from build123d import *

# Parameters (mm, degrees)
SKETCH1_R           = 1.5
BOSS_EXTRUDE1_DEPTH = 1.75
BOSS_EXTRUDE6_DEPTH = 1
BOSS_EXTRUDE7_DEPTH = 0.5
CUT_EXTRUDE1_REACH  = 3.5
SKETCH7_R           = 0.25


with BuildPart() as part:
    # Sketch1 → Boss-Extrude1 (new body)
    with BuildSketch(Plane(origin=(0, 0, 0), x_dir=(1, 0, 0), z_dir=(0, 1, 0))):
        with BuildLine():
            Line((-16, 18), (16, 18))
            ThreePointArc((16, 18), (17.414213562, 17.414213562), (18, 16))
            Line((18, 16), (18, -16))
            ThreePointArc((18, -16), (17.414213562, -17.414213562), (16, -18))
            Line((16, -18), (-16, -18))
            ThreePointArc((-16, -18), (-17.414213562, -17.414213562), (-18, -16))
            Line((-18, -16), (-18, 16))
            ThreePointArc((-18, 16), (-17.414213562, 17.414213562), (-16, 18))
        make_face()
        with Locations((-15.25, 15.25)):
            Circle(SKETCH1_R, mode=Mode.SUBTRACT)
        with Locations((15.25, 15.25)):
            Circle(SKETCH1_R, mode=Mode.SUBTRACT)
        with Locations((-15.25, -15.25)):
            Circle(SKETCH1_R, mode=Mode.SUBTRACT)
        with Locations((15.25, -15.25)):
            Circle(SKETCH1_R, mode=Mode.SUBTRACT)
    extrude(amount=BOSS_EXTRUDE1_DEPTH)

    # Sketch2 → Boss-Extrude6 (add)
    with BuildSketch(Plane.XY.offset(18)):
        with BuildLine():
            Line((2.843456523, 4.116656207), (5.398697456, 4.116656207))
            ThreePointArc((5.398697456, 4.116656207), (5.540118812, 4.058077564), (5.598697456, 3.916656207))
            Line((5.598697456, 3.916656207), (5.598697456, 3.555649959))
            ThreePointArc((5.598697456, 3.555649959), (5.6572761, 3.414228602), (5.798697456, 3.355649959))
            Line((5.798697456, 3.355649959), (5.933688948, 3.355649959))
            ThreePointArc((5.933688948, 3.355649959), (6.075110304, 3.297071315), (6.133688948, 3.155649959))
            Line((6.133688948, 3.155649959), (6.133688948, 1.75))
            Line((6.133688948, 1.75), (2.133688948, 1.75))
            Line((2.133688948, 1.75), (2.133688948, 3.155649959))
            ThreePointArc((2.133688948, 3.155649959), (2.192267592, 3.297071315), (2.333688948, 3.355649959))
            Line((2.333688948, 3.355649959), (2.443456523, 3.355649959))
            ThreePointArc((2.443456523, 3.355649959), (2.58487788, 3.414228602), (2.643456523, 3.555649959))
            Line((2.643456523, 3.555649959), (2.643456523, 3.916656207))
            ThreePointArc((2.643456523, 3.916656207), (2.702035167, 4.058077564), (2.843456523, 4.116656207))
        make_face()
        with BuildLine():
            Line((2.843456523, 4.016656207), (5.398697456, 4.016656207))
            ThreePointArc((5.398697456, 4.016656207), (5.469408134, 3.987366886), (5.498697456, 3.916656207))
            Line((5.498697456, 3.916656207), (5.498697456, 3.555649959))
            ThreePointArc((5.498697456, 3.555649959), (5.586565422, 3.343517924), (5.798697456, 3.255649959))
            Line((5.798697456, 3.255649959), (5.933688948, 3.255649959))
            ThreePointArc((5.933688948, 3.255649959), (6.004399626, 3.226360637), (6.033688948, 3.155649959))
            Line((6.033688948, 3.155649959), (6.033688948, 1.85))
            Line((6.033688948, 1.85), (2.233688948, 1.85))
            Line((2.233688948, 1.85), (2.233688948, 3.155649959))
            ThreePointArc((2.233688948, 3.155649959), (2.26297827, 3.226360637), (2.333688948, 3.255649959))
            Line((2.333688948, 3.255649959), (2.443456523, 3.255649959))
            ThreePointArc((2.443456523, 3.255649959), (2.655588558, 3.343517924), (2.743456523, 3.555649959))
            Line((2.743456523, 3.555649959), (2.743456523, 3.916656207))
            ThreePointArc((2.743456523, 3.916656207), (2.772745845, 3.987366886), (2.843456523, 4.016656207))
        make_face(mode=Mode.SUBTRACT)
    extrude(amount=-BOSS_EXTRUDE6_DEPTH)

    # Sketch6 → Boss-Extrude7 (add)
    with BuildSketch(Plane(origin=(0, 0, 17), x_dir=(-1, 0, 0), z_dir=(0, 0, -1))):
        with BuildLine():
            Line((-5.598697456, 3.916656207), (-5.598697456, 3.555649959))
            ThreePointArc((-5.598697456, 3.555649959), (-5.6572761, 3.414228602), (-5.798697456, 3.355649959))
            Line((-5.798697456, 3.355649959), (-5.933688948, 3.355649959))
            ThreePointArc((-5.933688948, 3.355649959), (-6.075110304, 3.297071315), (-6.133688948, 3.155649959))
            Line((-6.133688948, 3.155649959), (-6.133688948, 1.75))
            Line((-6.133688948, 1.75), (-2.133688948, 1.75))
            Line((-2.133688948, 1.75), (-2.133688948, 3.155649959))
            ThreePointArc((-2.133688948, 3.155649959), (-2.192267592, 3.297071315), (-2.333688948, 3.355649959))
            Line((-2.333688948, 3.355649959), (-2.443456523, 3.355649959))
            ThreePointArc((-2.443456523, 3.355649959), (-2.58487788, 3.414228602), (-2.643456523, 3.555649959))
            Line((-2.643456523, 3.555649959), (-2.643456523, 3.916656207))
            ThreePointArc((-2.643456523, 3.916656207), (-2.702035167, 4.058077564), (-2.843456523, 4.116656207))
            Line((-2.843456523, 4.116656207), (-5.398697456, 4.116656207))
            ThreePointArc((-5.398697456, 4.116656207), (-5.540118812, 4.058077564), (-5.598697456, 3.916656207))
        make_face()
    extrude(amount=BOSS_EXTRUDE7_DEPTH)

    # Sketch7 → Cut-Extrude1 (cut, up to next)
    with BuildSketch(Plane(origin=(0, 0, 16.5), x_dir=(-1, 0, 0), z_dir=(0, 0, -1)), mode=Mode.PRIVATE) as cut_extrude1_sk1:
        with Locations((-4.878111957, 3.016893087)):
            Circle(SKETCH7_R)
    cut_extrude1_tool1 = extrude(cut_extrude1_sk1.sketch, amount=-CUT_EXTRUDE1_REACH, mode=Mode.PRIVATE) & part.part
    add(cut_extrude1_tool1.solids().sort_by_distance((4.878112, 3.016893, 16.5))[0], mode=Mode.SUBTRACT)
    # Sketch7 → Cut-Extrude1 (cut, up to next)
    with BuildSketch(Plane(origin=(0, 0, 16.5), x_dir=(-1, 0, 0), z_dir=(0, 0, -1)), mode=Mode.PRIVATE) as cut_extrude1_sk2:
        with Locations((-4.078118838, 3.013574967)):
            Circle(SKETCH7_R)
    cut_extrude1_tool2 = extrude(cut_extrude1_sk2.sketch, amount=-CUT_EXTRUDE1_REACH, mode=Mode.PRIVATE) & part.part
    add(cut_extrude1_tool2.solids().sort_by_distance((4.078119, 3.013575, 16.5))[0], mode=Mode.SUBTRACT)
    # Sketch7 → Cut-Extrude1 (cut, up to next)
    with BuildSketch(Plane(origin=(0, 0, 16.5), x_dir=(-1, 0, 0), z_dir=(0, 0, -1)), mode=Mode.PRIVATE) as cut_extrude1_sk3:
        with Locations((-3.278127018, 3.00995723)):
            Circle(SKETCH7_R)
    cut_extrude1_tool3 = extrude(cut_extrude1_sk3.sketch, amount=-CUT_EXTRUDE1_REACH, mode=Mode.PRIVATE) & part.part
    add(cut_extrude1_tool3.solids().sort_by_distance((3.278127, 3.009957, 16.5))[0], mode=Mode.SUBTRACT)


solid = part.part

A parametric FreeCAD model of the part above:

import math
import FreeCAD as App
import Part
import Sketcher

V = App.Vector
Q = App.Units.Quantity

doc = App.newDocument("Part")
body = doc.addObject("PartDesign::Body", "Body")

# Sketch on XZ plane
sketch1 = body.newObject("Sketcher::SketchObject", "Sketch")
sketch1.AttachmentSupport = (doc.getObject("XZ_Plane"), [""])
sketch1.MapMode = "FlatFace"
sketch1.addGeometry([
    Part.LineSegment(V(16, -18, 0), V(-16, -18, 0)),  # 0
    Part.ArcOfCircle(Part.Circle(V(-16, -16, 0), V(0, 0, 1), 2), math.radians(-180), math.radians(-90)),  # 1
    Part.LineSegment(V(-18, -16, 0), V(-18, 16, 0)),  # 2
    Part.ArcOfCircle(Part.Circle(V(-16, 16, 0), V(0, 0, 1), 2), math.radians(90), math.radians(180)),  # 3
    Part.LineSegment(V(-16, 18, 0), V(16, 18, 0)),  # 4
    Part.ArcOfCircle(Part.Circle(V(16, 16, 0), V(0, 0, 1), 2), math.radians(0), math.radians(90)),  # 5
    Part.LineSegment(V(18, 16, 0), V(18, -16, 0)),  # 6
    Part.ArcOfCircle(Part.Circle(V(16, -16, 0), V(0, 0, 1), 2), math.radians(-90), math.radians(0)),  # 7
    Part.Circle(V(15.2, 15.2, 0), V(0, 0, 1), 1.5),  # 8
    Part.Circle(V(-15.2, 15.2, 0), V(0, 0, 1), 1.5),  # 9
    Part.Circle(V(15.2, -15.2, 0), V(0, 0, 1), 1.5),  # 10
    Part.Circle(V(-15.2, -15.2, 0), V(0, 0, 1), 1.5),  # 11
], False)
sketch1.addConstraint([
    Sketcher.Constraint("Tangent", 0, 2, 1, 2),
    Sketcher.Constraint("Tangent", 1, 1, 2, 1),
    Sketcher.Constraint("Tangent", 2, 2, 3, 2),
    Sketcher.Constraint("Tangent", 3, 1, 4, 1),
    Sketcher.Constraint("Tangent", 4, 2, 5, 2),
    Sketcher.Constraint("Tangent", 5, 1, 6, 1),
    Sketcher.Constraint("Tangent", 6, 2, 7, 2),
    Sketcher.Constraint("Tangent", 7, 1, 0, 1),
    Sketcher.Constraint("Horizontal", 0),
    Sketcher.Constraint("Vertical", 2),
    Sketcher.Constraint("Horizontal", 4),
    Sketcher.Constraint("Vertical", 6),
    Sketcher.Constraint("Equal", 1, 3),
    Sketcher.Constraint("Equal", 3, 5),
    Sketcher.Constraint("Equal", 5, 7),
    Sketcher.Constraint("Equal", 8, 9),
    Sketcher.Constraint("Equal", 9, 10),
    Sketcher.Constraint("Equal", 10, 11),
    Sketcher.Constraint("Symmetric", 1, 3, 5, 3, -1, 1),
    Sketcher.Constraint("Symmetric", 9, 3, 10, 3, -1, 1),
    Sketcher.Constraint("Symmetric", 8, 3, 11, 3, -1, 1),
    Sketcher.Constraint("Symmetric", 8, 3, 9, 3, -2),
    Sketcher.Constraint("Equal", 4, 2),
    Sketcher.Constraint("Diameter", 8, Q("3 mm")),
    Sketcher.Constraint("Radius", 1, Q("2 mm")),
    Sketcher.Constraint("DistanceX", 0, 2, 0, 1, Q("32 mm")),
    Sketcher.Constraint("DistanceX", 9, 3, 8, 3, Q("30.5 mm")),
    Sketcher.Constraint("DistanceY", 10, 3, 8, 3, Q("30.5 mm")),
])
pad1 = body.newObject("PartDesign::Pad", "Pad")
pad1.Profile = sketch1
pad1.Length = 1.75
pad1.Reversed = True

# Sketch on XY plane
sketch2 = body.newObject("Sketcher::SketchObject", "Sketch001")
sketch2.AttachmentSupport = (doc.getObject("XY_Plane"), [""])
sketch2.MapMode = "FlatFace"
sketch2.AttachmentOffset = App.Placement(V(0, 0, 18), App.Rotation())
sketch2.addGeometry([
    Part.LineSegment(V(5.4, 4.12, 0), V(2.84, 4.12, 0)),  # 0
    Part.ArcOfCircle(Part.Circle(V(2.84, 3.92, 0), V(0, 0, 1), 0.2), math.radians(90), math.radians(180)),  # 1
    Part.LineSegment(V(2.64, 3.92, 0), V(2.64, 3.56, 0)),  # 2
    Part.ArcOfCircle(Part.Circle(V(2.44, 3.56, 0), V(0, 0, 1), 0.2), math.radians(-90), math.radians(0)),  # 3
    Part.LineSegment(V(2.44, 3.36, 0), V(2.33, 3.36, 0)),  # 4
    Part.ArcOfCircle(Part.Circle(V(2.33, 3.16, 0), V(0, 0, 1), 0.2), math.radians(90), math.radians(180)),  # 5
    Part.LineSegment(V(2.13, 3.16, 0), V(2.13, 1.75, 0)),  # 6
    Part.LineSegment(V(2.13, 1.75, 0), V(6.13, 1.75, 0)),  # 7
    Part.LineSegment(V(6.13, 1.75, 0), V(6.13, 3.16, 0)),  # 8
    Part.ArcOfCircle(Part.Circle(V(5.93, 3.16, 0), V(0, 0, 1), 0.2), math.radians(0), math.radians(90)),  # 9
    Part.LineSegment(V(5.93, 3.36, 0), V(5.8, 3.36, 0)),  # 10
    Part.ArcOfCircle(Part.Circle(V(5.8, 3.56, 0), V(0, 0, 1), 0.2), math.radians(180), math.radians(270)),  # 11
    Part.LineSegment(V(5.6, 3.56, 0), V(5.6, 3.92, 0)),  # 12
    Part.ArcOfCircle(Part.Circle(V(5.4, 3.92, 0), V(0, 0, 1), 0.2), math.radians(0), math.radians(90)),  # 13
    Part.LineSegment(V(2.84, 4.02, 0), V(5.4, 4.02, 0)),  # 14
    Part.ArcOfCircle(Part.Circle(V(5.4, 3.92, 0), V(0, 0, 1), 0.1), math.radians(0), math.radians(90)),  # 15
    Part.LineSegment(V(5.5, 3.92, 0), V(5.5, 3.56, 0)),  # 16
    Part.ArcOfCircle(Part.Circle(V(5.8, 3.56, 0), V(0, 0, 1), 0.3), math.radians(180), math.radians(270)),  # 17
    Part.LineSegment(V(5.8, 3.26, 0), V(5.93, 3.26, 0)),  # 18
    Part.ArcOfCircle(Part.Circle(V(5.93, 3.16, 0), V(0, 0, 1), 0.1), math.radians(0), math.radians(90)),  # 19
    Part.LineSegment(V(6.03, 3.16, 0), V(6.03, 1.85, 0)),  # 20
    Part.LineSegment(V(6.03, 1.85, 0), V(2.23, 1.85, 0)),  # 21
    Part.LineSegment(V(2.23, 1.85, 0), V(2.23, 3.16, 0)),  # 22
    Part.ArcOfCircle(Part.Circle(V(2.33, 3.16, 0), V(0, 0, 1), 0.1), math.radians(90), math.radians(180)),  # 23
    Part.LineSegment(V(2.33, 3.26, 0), V(2.44, 3.26, 0)),  # 24
    Part.ArcOfCircle(Part.Circle(V(2.44, 3.56, 0), V(0, 0, 1), 0.3), math.radians(-90), math.radians(0)),  # 25
    Part.LineSegment(V(2.74, 3.56, 0), V(2.74, 3.92, 0)),  # 26
    Part.ArcOfCircle(Part.Circle(V(2.84, 3.92, 0), V(0, 0, 1), 0.1), math.radians(90), math.radians(180)),  # 27
], False)
sketch2.addConstraint([
    Sketcher.Constraint("Tangent", 0, 2, 1, 1),
    Sketcher.Constraint("Tangent", 1, 2, 2, 1),
    Sketcher.Constraint("Tangent", 2, 2, 3, 2),
    Sketcher.Constraint("Tangent", 3, 1, 4, 1),
    Sketcher.Constraint("Tangent", 4, 2, 5, 1),
    Sketcher.Constraint("Tangent", 5, 2, 6, 1),
    Sketcher.Constraint("Coincident", 6, 2, 7, 1),
    Sketcher.Constraint("Coincident", 7, 2, 8, 1),
    Sketcher.Constraint("Tangent", 8, 2, 9, 1),
    Sketcher.Constraint("Tangent", 9, 2, 10, 1),
    Sketcher.Constraint("Tangent", 10, 2, 11, 2),
    Sketcher.Constraint("Tangent", 11, 1, 12, 1),
    Sketcher.Constraint("Tangent", 12, 2, 13, 1),
    Sketcher.Constraint("Tangent", 13, 2, 0, 1),
    Sketcher.Constraint("Tangent", 14, 2, 15, 2),
    Sketcher.Constraint("Tangent", 15, 1, 16, 1),
    Sketcher.Constraint("Tangent", 16, 2, 17, 1),
    Sketcher.Constraint("Tangent", 17, 2, 18, 1),
    Sketcher.Constraint("Tangent", 18, 2, 19, 2),
    Sketcher.Constraint("Tangent", 19, 1, 20, 1),
    Sketcher.Constraint("Coincident", 20, 2, 21, 1),
    Sketcher.Constraint("Coincident", 21, 2, 22, 1),
    Sketcher.Constraint("Tangent", 22, 2, 23, 2),
    Sketcher.Constraint("Tangent", 23, 1, 24, 1),
    Sketcher.Constraint("Tangent", 24, 2, 25, 1),
    Sketcher.Constraint("Tangent", 25, 2, 26, 1),
    Sketcher.Constraint("Tangent", 26, 2, 27, 2),
    Sketcher.Constraint("Tangent", 27, 1, 14, 1),
    Sketcher.Constraint("Horizontal", 0),
    Sketcher.Constraint("Vertical", 2),
    Sketcher.Constraint("Horizontal", 4),
    Sketcher.Constraint("Vertical", 6),
    Sketcher.Constraint("Horizontal", 7),
    Sketcher.Constraint("Vertical", 8),
    Sketcher.Constraint("Horizontal", 10),
    Sketcher.Constraint("Vertical", 12),
    Sketcher.Constraint("Horizontal", 14),
    Sketcher.Constraint("Vertical", 16),
    Sketcher.Constraint("Horizontal", 18),
    Sketcher.Constraint("Vertical", 20),
    Sketcher.Constraint("Horizontal", 21),
    Sketcher.Constraint("Vertical", 22),
    Sketcher.Constraint("Horizontal", 24),
    Sketcher.Constraint("Vertical", 26),
    Sketcher.Constraint("Coincident", 15, 3, 13, 3),
    Sketcher.Constraint("Coincident", 17, 3, 11, 3),
    Sketcher.Constraint("Coincident", 19, 3, 9, 3),
    Sketcher.Constraint("Coincident", 23, 3, 5, 3),
    Sketcher.Constraint("Coincident", 25, 3, 3, 3),
    Sketcher.Constraint("Coincident", 27, 3, 1, 3),
    Sketcher.Constraint("Equal", 1, 3),
    Sketcher.Constraint("Equal", 3, 5),
    Sketcher.Constraint("Equal", 5, 9),
    Sketcher.Constraint("Equal", 9, 11),
    Sketcher.Constraint("Equal", 11, 13),
    Sketcher.Constraint("Horizontal", 5, 3, 9, 3),
    Sketcher.Constraint("Radius", 1, Q("0.2 mm")),
    Sketcher.Constraint("Radius", 15, Q("0.1 mm")),
    Sketcher.Constraint("DistanceX", 7, 1, 7, 2, Q("4 mm")),
    Sketcher.Constraint("DistanceY", 7, 2, 20, 2, Q("0.1 mm")),
    Sketcher.Constraint("DistanceY", -1, 1, 6, 2, Q("1.75 mm")),
    Sketcher.Constraint("DistanceX", 0, 2, 0, 1, Q("2.555241 mm")),
    Sketcher.Constraint("DistanceX", 10, 2, 10, 1, Q("0.134991 mm")),
    Sketcher.Constraint("DistanceY", 6, 2, 6, 1, Q("1.40565 mm")),
    Sketcher.Constraint("DistanceY", 2, 2, 2, 1, Q("0.361006 mm")),
    Sketcher.Constraint("DistanceX", -1, 1, 5, 3, Q("2.333689 mm")),
])
pad2 = body.newObject("PartDesign::Pad", "Pad001")
pad2.Profile = sketch2
pad2.Length = 1
pad2.Reversed = True

# Sketch on XY plane
sketch3 = body.newObject("Sketcher::SketchObject", "Sketch002")
sketch3.AttachmentSupport = (doc.getObject("XY_Plane"), [""])
sketch3.MapMode = "FlatFace"
sketch3.AttachmentOffset = App.Placement(V(0, 0, 17), App.Rotation())
sketch3.addGeometry([
    Part.LineSegment(V(5.6, 3.92, 0), V(5.6, 3.56, 0)),  # 0
    Part.ArcOfCircle(Part.Circle(V(5.8, 3.56, 0), V(0, 0, 1), 0.2), math.radians(180), math.radians(270)),  # 1
    Part.LineSegment(V(5.8, 3.36, 0), V(5.93, 3.36, 0)),  # 2
    Part.ArcOfCircle(Part.Circle(V(5.93, 3.16, 0), V(0, 0, 1), 0.2), math.radians(0), math.radians(90)),  # 3
    Part.LineSegment(V(6.13, 3.16, 0), V(6.13, 1.75, 0)),  # 4
    Part.LineSegment(V(6.13, 1.75, 0), V(2.13, 1.75, 0)),  # 5
    Part.LineSegment(V(2.13, 1.75, 0), V(2.13, 3.16, 0)),  # 6
    Part.ArcOfCircle(Part.Circle(V(2.33, 3.16, 0), V(0, 0, 1), 0.2), math.radians(90), math.radians(180)),  # 7
    Part.LineSegment(V(2.33, 3.36, 0), V(2.44, 3.36, 0)),  # 8
    Part.ArcOfCircle(Part.Circle(V(2.44, 3.56, 0), V(0, 0, 1), 0.2), math.radians(-90), math.radians(0)),  # 9
    Part.LineSegment(V(2.64, 3.56, 0), V(2.64, 3.92, 0)),  # 10
    Part.ArcOfCircle(Part.Circle(V(2.84, 3.92, 0), V(0, 0, 1), 0.2), math.radians(90), math.radians(180)),  # 11
    Part.LineSegment(V(2.84, 4.12, 0), V(5.4, 4.12, 0)),  # 12
    Part.ArcOfCircle(Part.Circle(V(5.4, 3.92, 0), V(0, 0, 1), 0.2), math.radians(0), math.radians(90)),  # 13
], False)
sketch3.addConstraint([
    Sketcher.Constraint("Tangent", 0, 2, 1, 1),
    Sketcher.Constraint("Tangent", 1, 2, 2, 1),
    Sketcher.Constraint("Tangent", 2, 2, 3, 2),
    Sketcher.Constraint("Tangent", 3, 1, 4, 1),
    Sketcher.Constraint("Coincident", 4, 2, 5, 1),
    Sketcher.Constraint("Coincident", 5, 2, 6, 1),
    Sketcher.Constraint("Tangent", 6, 2, 7, 2),
    Sketcher.Constraint("Tangent", 7, 1, 8, 1),
    Sketcher.Constraint("Tangent", 8, 2, 9, 1),
    Sketcher.Constraint("Tangent", 9, 2, 10, 1),
    Sketcher.Constraint("Tangent", 10, 2, 11, 2),
    Sketcher.Constraint("Tangent", 11, 1, 12, 1),
    Sketcher.Constraint("Tangent", 12, 2, 13, 2),
    Sketcher.Constraint("Tangent", 13, 1, 0, 1),
    Sketcher.Constraint("Vertical", 0),
    Sketcher.Constraint("Horizontal", 2),
    Sketcher.Constraint("Vertical", 4),
    Sketcher.Constraint("Horizontal", 5),
    Sketcher.Constraint("Vertical", 6),
    Sketcher.Constraint("Horizontal", 8),
    Sketcher.Constraint("Vertical", 10),
    Sketcher.Constraint("Horizontal", 12),
    Sketcher.Constraint("Equal", 1, 3),
    Sketcher.Constraint("Equal", 3, 7),
    Sketcher.Constraint("Equal", 7, 9),
    Sketcher.Constraint("Equal", 9, 11),
    Sketcher.Constraint("Equal", 11, 13),
    Sketcher.Constraint("Horizontal", 3, 3, 7, 3),
    Sketcher.Constraint("Radius", 1, Q("0.2 mm")),
    Sketcher.Constraint("DistanceX", 5, 2, 5, 1, Q("4 mm")),
    Sketcher.Constraint("DistanceY", -1, 1, 4, 2, Q("1.75 mm")),
    Sketcher.Constraint("DistanceX", 2, 1, 2, 2, Q("0.134991 mm")),
    Sketcher.Constraint("DistanceX", 12, 1, 12, 2, Q("2.555241 mm")),
    Sketcher.Constraint("DistanceY", 4, 2, 4, 1, Q("1.40565 mm")),
    Sketcher.Constraint("DistanceY", 0, 2, 0, 1, Q("0.361006 mm")),
    Sketcher.Constraint("DistanceX", -1, 1, 3, 3, Q("5.933689 mm")),
])
pad3 = body.newObject("PartDesign::Pad", "Pad002")
pad3.Profile = sketch3
pad3.Length = 0.5
pad3.Reversed = True

# Sketch on XY plane
sketch4 = body.newObject("Sketcher::SketchObject", "Sketch003")
sketch4.AttachmentSupport = (doc.getObject("XY_Plane"), [""])
sketch4.MapMode = "FlatFace"
sketch4.AttachmentOffset = App.Placement(V(0, 0, 16.5), App.Rotation())
sketch4.addGeometry(Part.Circle(V(4.88, 3.02, 0), V(0, 0, 1), 0.25), False)
sketch4.addConstraint([
    Sketcher.Constraint("Diameter", 0, Q("0.5 mm")),
    Sketcher.Constraint("DistanceX", -1, 1, 0, 3, Q("4.878112 mm")),
    Sketcher.Constraint("DistanceY", -1, 1, 0, 3, Q("3.016893 mm")),
])
pocket1 = body.newObject("PartDesign::Pocket", "Pocket")
pocket1.Profile = sketch4
pocket1.Type = "UpToFirst"
pocket1.Reversed = True

# Sketch on XY plane
sketch5 = body.newObject("Sketcher::SketchObject", "Sketch004")
sketch5.AttachmentSupport = (doc.getObject("XY_Plane"), [""])
sketch5.MapMode = "FlatFace"
sketch5.AttachmentOffset = App.Placement(V(0, 0, 16.5), App.Rotation())
sketch5.addGeometry(Part.Circle(V(4.08, 3.01, 0), V(0, 0, 1), 0.25), False)
sketch5.addConstraint([
    Sketcher.Constraint("Diameter", 0, Q("0.5 mm")),
    Sketcher.Constraint("DistanceX", -1, 1, 0, 3, Q("4.078119 mm")),
    Sketcher.Constraint("DistanceY", -1, 1, 0, 3, Q("3.013575 mm")),
])
pocket2 = body.newObject("PartDesign::Pocket", "Pocket001")
pocket2.Profile = sketch5
pocket2.Type = "UpToFirst"
pocket2.Reversed = True

# Sketch on XY plane
sketch6 = body.newObject("Sketcher::SketchObject", "Sketch005")
sketch6.AttachmentSupport = (doc.getObject("XY_Plane"), [""])
sketch6.MapMode = "FlatFace"
sketch6.AttachmentOffset = App.Placement(V(0, 0, 16.5), App.Rotation())
sketch6.addGeometry(Part.Circle(V(3.28, 3.01, 0), V(0, 0, 1), 0.25), False)
sketch6.addConstraint([
    Sketcher.Constraint("Diameter", 0, Q("0.5 mm")),
    Sketcher.Constraint("DistanceX", -1, 1, 0, 3, Q("3.278127 mm")),
    Sketcher.Constraint("DistanceY", -1, 1, 0, 3, Q("3.009957 mm")),
])
pocket3 = body.newObject("PartDesign::Pocket", "Pocket002")
pocket3.Profile = sketch6
pocket3.Type = "UpToFirst"
pocket3.Reversed = True

doc.recompute()
